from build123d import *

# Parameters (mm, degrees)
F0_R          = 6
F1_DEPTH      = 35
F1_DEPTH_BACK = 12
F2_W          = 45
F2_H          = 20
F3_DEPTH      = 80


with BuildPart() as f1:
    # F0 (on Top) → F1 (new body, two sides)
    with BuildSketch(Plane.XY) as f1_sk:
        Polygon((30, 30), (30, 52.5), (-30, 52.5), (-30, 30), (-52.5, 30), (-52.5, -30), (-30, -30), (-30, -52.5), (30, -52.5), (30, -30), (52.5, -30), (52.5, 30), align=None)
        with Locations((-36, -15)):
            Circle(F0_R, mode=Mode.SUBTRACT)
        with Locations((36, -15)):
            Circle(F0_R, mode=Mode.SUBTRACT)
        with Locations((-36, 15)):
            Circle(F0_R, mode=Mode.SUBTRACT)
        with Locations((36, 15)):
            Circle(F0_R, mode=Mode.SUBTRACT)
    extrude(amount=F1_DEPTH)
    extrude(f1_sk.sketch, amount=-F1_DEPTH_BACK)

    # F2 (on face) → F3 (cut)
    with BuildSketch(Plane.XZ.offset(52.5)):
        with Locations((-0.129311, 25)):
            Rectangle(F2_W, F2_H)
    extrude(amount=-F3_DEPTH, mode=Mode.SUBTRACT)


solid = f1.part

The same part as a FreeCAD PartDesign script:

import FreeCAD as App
import Part
import Sketcher

V = App.Vector

doc = App.newDocument("Part")
body = doc.addObject("PartDesign::Body", "Body")

# Sketch on XY plane
sketch1 = body.newObject("Sketcher::SketchObject", "Sketch")
sketch1.AttachmentSupport = (doc.getObject("XY_Plane"), [""])
sketch1.MapMode = "FlatFace"
sketch1.addGeometry([
    Part.LineSegment(V(30, 30, 0), V(30, 52.5, 0)),  # 0
    Part.LineSegment(V(30, 52.5, 0), V(-30, 52.5, 0)),  # 1
    Part.LineSegment(V(-30, 52.5, 0), V(-30, 30, 0)),  # 2
    Part.LineSegment(V(-30, 30, 0), V(-52.5, 30, 0)),  # 3
    Part.LineSegment(V(-52.5, 30, 0), V(-52.5, -30, 0)),  # 4
    Part.LineSegment(V(-52.5, -30, 0), V(-30, -30, 0)),  # 5
    Part.LineSegment(V(-30, -30, 0), V(-30, -52.5, 0)),  # 6
    Part.LineSegment(V(-30, -52.5, 0), V(30, -52.5, 0)),  # 7
    Part.LineSegment(V(30, -52.5, 0), V(30, -30, 0)),  # 8
    Part.LineSegment(V(30, -30, 0), V(52.5, -30, 0)),  # 9
    Part.LineSegment(V(52.5, -30, 0), V(52.5, 30, 0)),  # 10
    Part.LineSegment(V(52.5, 30, 0), V(30, 30, 0)),  # 11
    Part.Circle(V(-36, -15, 0), V(0, 0, 1), 6),  # 12
    Part.Circle(V(36, -15, 0), V(0, 0, 1), 6),  # 13
    Part.Circle(V(-36, 15, 0), V(0, 0, 1), 6),  # 14
    Part.Circle(V(36, 15, 0), V(0, 0, 1), 6),  # 15
], False)
sketch1.addConstraint([
    Sketcher.Constraint("Coincident", 0, 2, 1, 1),
    Sketcher.Constraint("Coincident", 1, 2, 2, 1),
    Sketcher.Constraint("Coincident", 2, 2, 3, 1),
    Sketcher.Constraint("Coincident", 3, 2, 4, 1),
    Sketcher.Constraint("Coincident", 4, 2, 5, 1),
    Sketcher.Constraint("Coincident", 5, 2, 6, 1),
    Sketcher.Constraint("Coincident", 6, 2, 7, 1),
    Sketcher.Constraint("Coincident", 7, 2, 8, 1),
    Sketcher.Constraint("Coincident", 8, 2, 9, 1),
    Sketcher.Constraint("Coincident", 9, 2, 10, 1),
    Sketcher.Constraint("Coincident", 10, 2, 11, 1),
    Sketcher.Constraint("Coincident", 11, 2, 0, 1),
    Sketcher.Constraint("Vertical", 0),
    Sketcher.Constraint("Horizontal", 1),
    Sketcher.Constraint("Vertical", 2),
    Sketcher.Constraint("Horizontal", 3),
    Sketcher.Constraint("Vertical", 4),
    Sketcher.Constraint("Horizontal", 5),
    Sketcher.Constraint("Vertical", 6),
    Sketcher.Constraint("Horizontal", 7),
    Sketcher.Constraint("Vertical", 8),
    Sketcher.Constraint("Horizontal", 9),
    Sketcher.Constraint("Vertical", 10),
    Sketcher.Constraint("Horizontal", 11),
    Sketcher.Constraint("Equal", 12, 13),
    Sketcher.Constraint("Equal", 13, 14),
    Sketcher.Constraint("Equal", 14, 15),
    Sketcher.Constraint("Symmetric", 13, 3, 14, 3, -1, 1),
    Sketcher.Constraint("Symmetric", 12, 3, 15, 3, -1, 1),
    Sketcher.Constraint("Symmetric", 0, 2, 6, 2, -1, 1),
    Sketcher.Constraint("Symmetric", 2, 2, 8, 2, -1, 1),
    Sketcher.Constraint("Symmetric", 4, 2, 10, 2, -1, 1),
    Sketcher.Constraint("Symmetric", 12, 3, 13, 3, -2),
    Sketcher.Constraint("Symmetric", 5, 2, 8, 2, -2),
    Sketcher.Constraint("Equal", 11, 0),
    Sketcher.Constraint("Equal", 7, 4),
    Sketcher.Constraint("Diameter", 12, 12.0),
    Sketcher.Constraint("DistanceX", 1, 2, 1, 1, 60.0),
    Sketcher.Constraint("DistanceX", 3, 2, 3, 1, 22.5),
    Sketcher.Constraint("DistanceX", 12, 3, -1, 1, 36.0),
    Sketcher.Constraint("DistanceY", 12, 3, -1, 1, 15.0),
])
pad1 = body.newObject("PartDesign::Pad", "Pad")
pad1.Profile = sketch1
pad1.Type = "TwoLengths"
pad1.Length = 35
pad1.Length2 = 12

# Sketch on XZ plane
sketch2 = body.newObject("Sketcher::SketchObject", "Sketch001")
sketch2.AttachmentSupport = (doc.getObject("XZ_Plane"), [""])
sketch2.MapMode = "FlatFace"
sketch2.AttachmentOffset = App.Placement(V(0, 0, 52.5), App.Rotation())
sketch2.addGeometry([
    Part.LineSegment(V(-22.629311, 35, 0), V(-22.629311, 15, 0)),
    Part.LineSegment(V(-22.629311, 15, 0), V(22.370689, 15, 0)),
    Part.LineSegment(V(22.370689, 15, 0), V(22.370689, 35, 0)),
    Part.LineSegment(V(22.370689, 35, 0), V(-22.629311, 35, 0)),
], False)
sketch2.addConstraint([
    Sketcher.Constraint("Coincident", 0, 2, 1, 1),
    Sketcher.Constraint("Coincident", 1, 2, 2, 1),
    Sketcher.Constraint("Coincident", 2, 2, 3, 1),
    Sketcher.Constraint("Coincident", 3, 2, 0, 1),
    Sketcher.Constraint("Vertical", 0),
    Sketcher.Constraint("Horizontal", 1),
    Sketcher.Constraint("Vertical", 2),
    Sketcher.Constraint("Horizontal", 3),
    Sketcher.Constraint("DistanceX", 1, 1, 1, 2, 45.0),
    Sketcher.Constraint("DistanceY", 0, 2, 0, 1, 20.0),
    Sketcher.Constraint("DistanceY", -1, 1, 0, 2, 15.0),
    Sketcher.Constraint("DistanceX", 0, 2, -1, 1, 22.629311),
])
pocket1 = body.newObject("PartDesign::Pocket", "Pocket")
pocket1.Profile = sketch2
pocket1.Length = 80

doc.recompute()
